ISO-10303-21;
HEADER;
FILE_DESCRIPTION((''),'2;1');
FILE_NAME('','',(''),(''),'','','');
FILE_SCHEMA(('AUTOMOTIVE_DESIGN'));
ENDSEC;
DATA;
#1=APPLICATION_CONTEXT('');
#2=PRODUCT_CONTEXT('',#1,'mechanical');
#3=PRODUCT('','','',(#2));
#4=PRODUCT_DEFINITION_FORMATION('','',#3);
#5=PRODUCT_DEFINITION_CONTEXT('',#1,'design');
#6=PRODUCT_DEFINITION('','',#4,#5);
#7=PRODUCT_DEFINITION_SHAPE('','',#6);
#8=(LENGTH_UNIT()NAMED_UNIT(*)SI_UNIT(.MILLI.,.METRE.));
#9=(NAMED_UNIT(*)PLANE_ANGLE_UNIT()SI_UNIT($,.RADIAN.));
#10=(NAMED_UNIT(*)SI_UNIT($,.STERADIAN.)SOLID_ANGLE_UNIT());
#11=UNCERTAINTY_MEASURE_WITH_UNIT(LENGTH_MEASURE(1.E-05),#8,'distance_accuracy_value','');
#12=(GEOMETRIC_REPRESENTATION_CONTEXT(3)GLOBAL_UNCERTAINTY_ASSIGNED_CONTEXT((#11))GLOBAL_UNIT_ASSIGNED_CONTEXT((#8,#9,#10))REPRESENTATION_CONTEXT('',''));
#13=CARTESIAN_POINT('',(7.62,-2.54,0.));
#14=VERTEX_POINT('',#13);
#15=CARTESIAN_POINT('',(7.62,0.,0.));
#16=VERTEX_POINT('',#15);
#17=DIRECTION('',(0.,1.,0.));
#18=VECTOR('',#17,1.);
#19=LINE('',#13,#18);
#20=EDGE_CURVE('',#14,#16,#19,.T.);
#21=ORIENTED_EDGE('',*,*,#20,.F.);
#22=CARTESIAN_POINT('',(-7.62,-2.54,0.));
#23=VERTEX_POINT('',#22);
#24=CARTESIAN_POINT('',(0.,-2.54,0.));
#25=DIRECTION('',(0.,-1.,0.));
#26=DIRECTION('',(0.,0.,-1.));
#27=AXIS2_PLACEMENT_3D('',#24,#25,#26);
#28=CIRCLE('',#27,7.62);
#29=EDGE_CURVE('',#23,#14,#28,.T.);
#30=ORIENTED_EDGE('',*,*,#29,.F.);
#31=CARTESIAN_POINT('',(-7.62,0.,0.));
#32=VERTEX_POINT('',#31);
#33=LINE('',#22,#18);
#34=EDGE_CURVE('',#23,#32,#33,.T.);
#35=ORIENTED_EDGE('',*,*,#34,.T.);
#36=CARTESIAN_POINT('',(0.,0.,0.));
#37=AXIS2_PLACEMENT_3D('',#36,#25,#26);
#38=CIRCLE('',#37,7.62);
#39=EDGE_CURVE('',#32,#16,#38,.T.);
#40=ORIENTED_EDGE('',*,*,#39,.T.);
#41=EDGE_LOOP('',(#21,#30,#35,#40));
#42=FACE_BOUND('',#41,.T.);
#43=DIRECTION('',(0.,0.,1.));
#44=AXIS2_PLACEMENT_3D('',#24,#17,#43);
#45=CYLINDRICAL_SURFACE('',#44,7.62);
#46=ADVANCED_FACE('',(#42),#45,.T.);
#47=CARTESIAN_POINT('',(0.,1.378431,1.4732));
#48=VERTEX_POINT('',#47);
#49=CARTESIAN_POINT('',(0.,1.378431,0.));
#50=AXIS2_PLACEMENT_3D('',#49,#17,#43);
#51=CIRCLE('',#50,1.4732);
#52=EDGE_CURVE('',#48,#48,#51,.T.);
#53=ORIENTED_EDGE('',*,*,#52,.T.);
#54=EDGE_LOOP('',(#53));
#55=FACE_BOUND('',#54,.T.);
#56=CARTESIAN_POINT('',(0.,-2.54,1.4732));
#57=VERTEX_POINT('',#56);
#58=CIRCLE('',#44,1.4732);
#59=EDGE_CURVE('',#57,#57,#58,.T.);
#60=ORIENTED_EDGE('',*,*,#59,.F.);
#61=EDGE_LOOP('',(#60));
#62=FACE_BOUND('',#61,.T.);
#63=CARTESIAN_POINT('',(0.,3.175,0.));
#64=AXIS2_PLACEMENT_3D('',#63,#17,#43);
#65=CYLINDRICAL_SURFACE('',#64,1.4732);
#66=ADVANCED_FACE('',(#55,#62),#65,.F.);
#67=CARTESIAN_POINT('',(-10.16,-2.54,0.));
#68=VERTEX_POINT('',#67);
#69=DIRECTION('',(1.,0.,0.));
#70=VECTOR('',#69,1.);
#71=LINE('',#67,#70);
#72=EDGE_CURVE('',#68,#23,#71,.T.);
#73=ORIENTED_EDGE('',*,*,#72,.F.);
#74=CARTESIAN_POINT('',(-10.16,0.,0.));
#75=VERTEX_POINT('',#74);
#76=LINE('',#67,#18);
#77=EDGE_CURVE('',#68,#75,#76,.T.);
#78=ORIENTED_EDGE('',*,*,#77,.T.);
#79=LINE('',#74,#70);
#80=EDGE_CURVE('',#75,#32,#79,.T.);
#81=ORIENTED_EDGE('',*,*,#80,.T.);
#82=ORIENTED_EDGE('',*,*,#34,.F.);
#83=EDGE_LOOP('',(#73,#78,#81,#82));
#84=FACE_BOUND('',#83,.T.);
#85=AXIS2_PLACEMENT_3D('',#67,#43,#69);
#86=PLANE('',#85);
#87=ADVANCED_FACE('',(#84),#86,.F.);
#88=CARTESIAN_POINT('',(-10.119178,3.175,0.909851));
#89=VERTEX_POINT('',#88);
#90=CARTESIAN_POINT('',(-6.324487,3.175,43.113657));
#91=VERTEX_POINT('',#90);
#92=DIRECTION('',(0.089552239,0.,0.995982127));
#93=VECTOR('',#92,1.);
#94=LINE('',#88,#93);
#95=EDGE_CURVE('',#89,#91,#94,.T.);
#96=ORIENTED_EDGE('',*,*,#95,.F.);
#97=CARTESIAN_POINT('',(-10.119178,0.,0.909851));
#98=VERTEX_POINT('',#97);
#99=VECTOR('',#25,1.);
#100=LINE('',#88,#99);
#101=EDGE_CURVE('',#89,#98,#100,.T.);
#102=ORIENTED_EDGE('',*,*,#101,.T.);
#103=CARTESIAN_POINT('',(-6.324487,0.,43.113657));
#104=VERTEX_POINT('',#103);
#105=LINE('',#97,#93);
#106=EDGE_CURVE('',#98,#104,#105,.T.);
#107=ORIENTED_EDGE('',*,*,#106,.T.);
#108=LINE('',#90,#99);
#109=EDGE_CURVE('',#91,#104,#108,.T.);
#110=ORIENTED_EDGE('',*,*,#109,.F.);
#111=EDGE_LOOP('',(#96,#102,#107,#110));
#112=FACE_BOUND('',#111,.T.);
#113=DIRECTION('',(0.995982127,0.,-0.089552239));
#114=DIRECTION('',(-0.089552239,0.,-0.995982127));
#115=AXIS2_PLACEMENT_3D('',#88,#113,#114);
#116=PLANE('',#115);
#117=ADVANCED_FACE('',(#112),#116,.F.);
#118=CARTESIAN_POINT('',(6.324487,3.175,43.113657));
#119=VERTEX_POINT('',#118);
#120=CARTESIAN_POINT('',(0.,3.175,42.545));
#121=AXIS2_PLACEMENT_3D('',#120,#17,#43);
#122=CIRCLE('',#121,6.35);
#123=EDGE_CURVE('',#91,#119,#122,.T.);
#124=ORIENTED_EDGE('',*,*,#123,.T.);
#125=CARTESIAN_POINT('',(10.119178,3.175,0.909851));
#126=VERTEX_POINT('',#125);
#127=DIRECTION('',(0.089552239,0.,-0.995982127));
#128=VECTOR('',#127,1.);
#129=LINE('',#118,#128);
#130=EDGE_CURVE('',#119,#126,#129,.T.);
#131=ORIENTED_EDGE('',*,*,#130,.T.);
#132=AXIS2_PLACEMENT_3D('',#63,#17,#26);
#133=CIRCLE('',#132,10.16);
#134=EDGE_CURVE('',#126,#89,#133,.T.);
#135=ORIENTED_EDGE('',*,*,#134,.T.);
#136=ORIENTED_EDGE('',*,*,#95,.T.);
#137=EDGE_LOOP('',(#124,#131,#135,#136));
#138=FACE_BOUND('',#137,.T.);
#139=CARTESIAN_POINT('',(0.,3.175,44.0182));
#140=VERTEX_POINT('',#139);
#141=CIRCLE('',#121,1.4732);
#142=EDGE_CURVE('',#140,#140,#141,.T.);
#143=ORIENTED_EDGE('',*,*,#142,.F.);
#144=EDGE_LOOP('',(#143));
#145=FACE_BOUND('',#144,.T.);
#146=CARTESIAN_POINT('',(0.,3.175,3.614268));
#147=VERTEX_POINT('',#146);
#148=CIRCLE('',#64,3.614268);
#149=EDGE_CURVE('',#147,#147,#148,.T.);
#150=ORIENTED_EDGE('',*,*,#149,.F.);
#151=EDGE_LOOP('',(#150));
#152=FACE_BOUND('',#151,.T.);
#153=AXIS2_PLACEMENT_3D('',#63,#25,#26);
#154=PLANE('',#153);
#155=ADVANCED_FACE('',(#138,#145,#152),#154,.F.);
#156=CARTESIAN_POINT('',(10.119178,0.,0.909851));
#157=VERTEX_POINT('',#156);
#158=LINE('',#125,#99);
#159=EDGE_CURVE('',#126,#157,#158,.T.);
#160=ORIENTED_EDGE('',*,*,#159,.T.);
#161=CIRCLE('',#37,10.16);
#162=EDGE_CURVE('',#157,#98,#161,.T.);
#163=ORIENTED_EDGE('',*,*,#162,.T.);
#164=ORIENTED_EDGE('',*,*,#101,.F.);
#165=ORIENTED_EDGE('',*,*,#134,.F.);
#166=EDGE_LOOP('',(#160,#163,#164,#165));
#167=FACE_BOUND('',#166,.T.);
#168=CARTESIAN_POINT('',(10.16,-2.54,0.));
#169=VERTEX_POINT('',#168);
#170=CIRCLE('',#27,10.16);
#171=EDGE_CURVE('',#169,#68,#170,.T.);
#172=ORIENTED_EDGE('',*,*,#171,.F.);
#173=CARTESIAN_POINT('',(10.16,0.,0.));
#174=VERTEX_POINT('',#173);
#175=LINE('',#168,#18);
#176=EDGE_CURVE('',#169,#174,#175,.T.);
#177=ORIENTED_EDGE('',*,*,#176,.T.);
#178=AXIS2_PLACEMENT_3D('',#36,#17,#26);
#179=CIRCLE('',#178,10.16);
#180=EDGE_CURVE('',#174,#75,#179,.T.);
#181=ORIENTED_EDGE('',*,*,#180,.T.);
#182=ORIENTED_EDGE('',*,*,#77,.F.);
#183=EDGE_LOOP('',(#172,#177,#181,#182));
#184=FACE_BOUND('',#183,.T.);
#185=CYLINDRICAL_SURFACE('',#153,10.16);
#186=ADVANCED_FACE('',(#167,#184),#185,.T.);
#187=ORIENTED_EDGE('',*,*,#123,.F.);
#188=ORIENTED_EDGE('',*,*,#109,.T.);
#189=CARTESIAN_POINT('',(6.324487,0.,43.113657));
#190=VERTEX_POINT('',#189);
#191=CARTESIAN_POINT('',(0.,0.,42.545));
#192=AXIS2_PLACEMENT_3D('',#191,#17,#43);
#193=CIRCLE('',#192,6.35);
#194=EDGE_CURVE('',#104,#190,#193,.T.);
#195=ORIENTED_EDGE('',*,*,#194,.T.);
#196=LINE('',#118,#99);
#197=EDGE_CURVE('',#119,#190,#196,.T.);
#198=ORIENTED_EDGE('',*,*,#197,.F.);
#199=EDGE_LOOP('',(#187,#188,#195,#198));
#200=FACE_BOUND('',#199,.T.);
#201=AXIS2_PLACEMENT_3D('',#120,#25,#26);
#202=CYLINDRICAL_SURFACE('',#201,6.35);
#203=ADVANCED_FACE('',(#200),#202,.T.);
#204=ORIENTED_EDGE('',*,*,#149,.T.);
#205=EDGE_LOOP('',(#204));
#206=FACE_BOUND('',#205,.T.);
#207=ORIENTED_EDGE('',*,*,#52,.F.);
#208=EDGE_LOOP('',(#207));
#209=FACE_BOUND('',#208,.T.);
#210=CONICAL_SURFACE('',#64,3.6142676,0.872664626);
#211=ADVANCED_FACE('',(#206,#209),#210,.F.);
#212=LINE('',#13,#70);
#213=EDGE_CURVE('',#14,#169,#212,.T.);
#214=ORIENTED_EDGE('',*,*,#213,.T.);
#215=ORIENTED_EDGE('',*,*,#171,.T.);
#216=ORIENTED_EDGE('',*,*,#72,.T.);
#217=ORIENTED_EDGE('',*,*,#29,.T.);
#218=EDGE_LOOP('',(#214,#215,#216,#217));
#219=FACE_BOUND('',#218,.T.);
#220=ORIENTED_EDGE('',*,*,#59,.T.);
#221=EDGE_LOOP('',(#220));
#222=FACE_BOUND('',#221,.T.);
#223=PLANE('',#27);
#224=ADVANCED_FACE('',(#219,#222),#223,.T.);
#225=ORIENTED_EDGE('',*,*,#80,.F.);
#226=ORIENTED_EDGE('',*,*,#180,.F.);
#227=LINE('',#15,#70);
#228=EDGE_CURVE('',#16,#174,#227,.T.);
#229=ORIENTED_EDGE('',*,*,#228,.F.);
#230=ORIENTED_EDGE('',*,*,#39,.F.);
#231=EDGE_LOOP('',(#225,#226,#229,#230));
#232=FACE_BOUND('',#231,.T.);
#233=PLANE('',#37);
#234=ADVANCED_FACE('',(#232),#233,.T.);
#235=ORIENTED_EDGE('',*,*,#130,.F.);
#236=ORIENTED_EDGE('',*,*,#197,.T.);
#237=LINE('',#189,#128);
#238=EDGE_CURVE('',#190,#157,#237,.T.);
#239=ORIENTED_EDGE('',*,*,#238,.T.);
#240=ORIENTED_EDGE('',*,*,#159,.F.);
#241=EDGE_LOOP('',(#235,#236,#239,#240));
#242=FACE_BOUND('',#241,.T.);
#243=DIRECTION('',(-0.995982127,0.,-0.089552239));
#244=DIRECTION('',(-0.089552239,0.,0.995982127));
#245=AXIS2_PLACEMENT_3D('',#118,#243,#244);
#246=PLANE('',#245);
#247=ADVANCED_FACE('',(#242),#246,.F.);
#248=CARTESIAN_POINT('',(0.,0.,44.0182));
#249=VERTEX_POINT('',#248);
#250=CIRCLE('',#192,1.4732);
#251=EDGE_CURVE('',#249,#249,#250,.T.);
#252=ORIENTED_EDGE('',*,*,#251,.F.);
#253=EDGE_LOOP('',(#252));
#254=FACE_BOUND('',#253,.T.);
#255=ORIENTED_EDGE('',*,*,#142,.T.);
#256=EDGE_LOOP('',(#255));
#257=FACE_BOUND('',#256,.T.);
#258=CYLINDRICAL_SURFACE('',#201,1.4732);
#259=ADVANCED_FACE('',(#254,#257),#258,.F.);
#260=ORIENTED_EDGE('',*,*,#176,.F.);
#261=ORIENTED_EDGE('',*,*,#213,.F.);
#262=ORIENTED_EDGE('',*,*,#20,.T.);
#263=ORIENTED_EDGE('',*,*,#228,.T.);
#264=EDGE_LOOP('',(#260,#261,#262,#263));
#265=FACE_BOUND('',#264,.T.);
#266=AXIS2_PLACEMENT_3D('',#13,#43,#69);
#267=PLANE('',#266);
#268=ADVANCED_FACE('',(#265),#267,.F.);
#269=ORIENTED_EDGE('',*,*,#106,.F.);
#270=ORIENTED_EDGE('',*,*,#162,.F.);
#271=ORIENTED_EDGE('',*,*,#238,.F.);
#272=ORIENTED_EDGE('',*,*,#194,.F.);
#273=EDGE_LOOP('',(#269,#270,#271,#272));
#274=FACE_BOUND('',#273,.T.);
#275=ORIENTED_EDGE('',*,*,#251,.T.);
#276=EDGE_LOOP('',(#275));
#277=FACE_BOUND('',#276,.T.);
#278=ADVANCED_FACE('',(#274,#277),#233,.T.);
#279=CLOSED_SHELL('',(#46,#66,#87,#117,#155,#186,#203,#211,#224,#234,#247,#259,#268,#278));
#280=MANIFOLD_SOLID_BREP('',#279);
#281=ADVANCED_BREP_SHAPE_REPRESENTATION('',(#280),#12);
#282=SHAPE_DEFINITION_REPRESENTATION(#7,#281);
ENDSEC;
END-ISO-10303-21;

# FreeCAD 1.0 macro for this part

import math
import FreeCAD as App
import Part
import Sketcher
Q = App.Units.Quantity

doc = App.newDocument("Part")
params = doc.addObject("Spreadsheet::Sheet", "Params")
for row, (alias, value) in enumerate([
    ("sketch1_radius", "0.4 in"),
    ("sketch1_radius2", "0.25 in"),
    ("sketch1_diameter", "0.116 in"),
    ("pad1_length", "0.125 in"),
    ("sketch2_radius", "0.4 in"),
    ("sketch2_radius2", "0.3 in"),
    ("pad2_length", "0.1 in"),
    ("sketch3_diameter", "0.116 in"),
    ("hole_diameter", "0.116 in"),
    ("hole_csink_diameter", "7.228535 mm"),
], start=1):
    params.set(f"A{row}", alias)
    params.set(f"B{row}", "=" + value)
    params.setAlias(f"B{row}", alias)

body = doc.addObject("PartDesign::Body", "Body")

# Sketch on XZ plane
sketch1 = doc.addObject("Sketcher::SketchObject", "Sketch")
body.addObject(sketch1)
sketch1.AttachmentSupport = (doc.XZ_Plane, [""])
sketch1.MapMode = "FlatFace"
sketch1.addGeometry(Part.LineSegment(App.Vector(-10.1, 0.9, 0), App.Vector(-6.3, 43.1, 0)), False)
sketch1.addGeometry(Part.ArcOfCircle(Part.Circle(App.Vector(0, 42.5, 0), App.Vector(0, 0, 1), 6.3), math.radians(5), math.radians(175)), False)
sketch1.addGeometry(Part.LineSegment(App.Vector(6.3, 43.1, 0), App.Vector(10.1, 0.9, 0)), False)
sketch1.addGeometry(Part.ArcOfCircle(Part.Circle(App.Vector(0, 0, 0), App.Vector(0, 0, 1), 10.2), math.radians(175), math.radians(365)), False)
sketch1.addGeometry(Part.Circle(App.Vector(0, 42.5, 0), App.Vector(0, 0, 1), 1.5), False)
sketch1.addConstraint(Sketcher.Constraint("Tangent", 0, 2, 1, 2))
sketch1.addConstraint(Sketcher.Constraint("Tangent", 1, 1, 2, 1))
sketch1.addConstraint(Sketcher.Constraint("Tangent", 2, 2, 3, 2))
sketch1.addConstraint(Sketcher.Constraint("Tangent", 3, 1, 0, 1))
sketch1.addConstraint(Sketcher.Constraint("Coincident", 3, 3, -1, 1))
sketch1.addConstraint(Sketcher.Constraint("Coincident", 4, 3, 1, 3))
sketch1.addConstraint(Sketcher.Constraint("PointOnObject", 1, 3, -2))
sketch1.addConstraint(Sketcher.Constraint("Radius", 3, Q("0.4 in")))
sketch1.addConstraint(Sketcher.Constraint("Radius", 1, Q("0.25 in")))
sketch1.addConstraint(Sketcher.Constraint("Diameter", 4, Q("0.116 in")))
sketch1.addConstraint(Sketcher.Constraint("DistanceY", -1, 1, 1, 3, Q("1.675 in")))
sketch1.setExpression("Constraints[7]", "Params.sketch1_radius")
sketch1.setExpression("Constraints[8]", "Params.sketch1_radius2")
sketch1.setExpression("Constraints[9]", "Params.sketch1_diameter")
pad1 = doc.addObject("PartDesign::Pad", "Pad")
body.addObject(pad1)
pad1.Profile = sketch1
pad1.setExpression("Length", "Params.pad1_length")
pad1.Reversed = True

# Sketch on XZ plane
sketch2 = doc.addObject("Sketcher::SketchObject", "Sketch001")
body.addObject(sketch2)
sketch2.AttachmentSupport = (doc.XZ_Plane, [""])
sketch2.MapMode = "FlatFace"
sketch2.AttachmentOffset = App.Placement(App.Vector(0, 0, 0.1 * 25.4), App.Rotation())
sketch2.addGeometry(Part.LineSegment(App.Vector(7.6, 0, 0), App.Vector(10.2, 0, 0)), False)
sketch2.addGeometry(Part.ArcOfCircle(Part.Circle(App.Vector(0, 0, 0), App.Vector(0, 0, 1), 10.2), math.radians(0), math.radians(180)), False)
sketch2.addGeometry(Part.LineSegment(App.Vector(-10.2, 0, 0), App.Vector(-7.6, 0, 0)), False)
sketch2.addGeometry(Part.ArcOfCircle(Part.Circle(App.Vector(0, 0, 0), App.Vector(0, 0, 1), 7.6), math.radians(180), math.radians(360)), False)
sketch2.addConstraint(Sketcher.Constraint("Coincident", 0, 2, 1, 1))
sketch2.addConstraint(Sketcher.Constraint("Coincident", 1, 2, 2, 1))
sketch2.addConstraint(Sketcher.Constraint("Coincident", 2, 2, 3, 1))
sketch2.addConstraint(Sketcher.Constraint("Coincident", 3, 2, 0, 1))
sketch2.addConstraint(Sketcher.Constraint("Horizontal", 0))
sketch2.addConstraint(Sketcher.Constraint("Horizontal", 2))
sketch2.addConstraint(Sketcher.Constraint("Coincident", 1, 3, -1, 1))
sketch2.addConstraint(Sketcher.Constraint("Coincident", 3, 3, -1, 1))
sketch2.addConstraint(Sketcher.Constraint("PointOnObject", 0, 2, -1))
sketch2.addConstraint(Sketcher.Constraint("PointOnObject", 1, 2, -1))
sketch2.addConstraint(Sketcher.Constraint("Radius", 1, Q("0.4 in")))
sketch2.addConstraint(Sketcher.Constraint("Radius", 3, Q("0.3 in")))
sketch2.setExpression("Constraints[10]", "Params.sketch2_radius")
sketch2.setExpression("Constraints[11]", "Params.sketch2_radius2")
pad2 = doc.addObject("PartDesign::Pad", "Pad001")
body.addObject(pad2)
pad2.Profile = sketch2
pad2.setExpression("Length", "Params.pad2_length")
pad2.Reversed = True

# Sketch on XZ plane
sketch3 = doc.addObject("Sketcher::SketchObject", "Sketch002")
body.addObject(sketch3)
sketch3.AttachmentSupport = (doc.XZ_Plane, [""])
sketch3.MapMode = "FlatFace"
sketch3.AttachmentOffset = App.Placement(App.Vector(0, 0, -0.125 * 25.4), App.Rotation())
sketch3.addGeometry(Part.Circle(App.Vector(0, 0, 0), App.Vector(0, 0, 1), 1.5), False)
sketch3.addConstraint(Sketcher.Constraint("Coincident", 0, 3, -1, 1))
sketch3.addConstraint(Sketcher.Constraint("Diameter", 0, Q("0.116 in")))
sketch3.setExpression("Constraints[1]", "Params.sketch3_diameter")
doc.recompute()
hole = doc.addObject("PartDesign::Hole", "Hole")
body.addObject(hole)
hole.Profile = sketch3
hole.ThreadType = "None"
hole.setExpression("Diameter", "Params.hole_diameter")
hole.DepthType = "ThroughAll"
hole.HoleCutType = "Countersink"
hole.setExpression("HoleCutDiameter", "Params.hole_csink_diameter")
hole.HoleCutCountersinkAngle = 100
hole.Reversed = True

doc.recompute()
